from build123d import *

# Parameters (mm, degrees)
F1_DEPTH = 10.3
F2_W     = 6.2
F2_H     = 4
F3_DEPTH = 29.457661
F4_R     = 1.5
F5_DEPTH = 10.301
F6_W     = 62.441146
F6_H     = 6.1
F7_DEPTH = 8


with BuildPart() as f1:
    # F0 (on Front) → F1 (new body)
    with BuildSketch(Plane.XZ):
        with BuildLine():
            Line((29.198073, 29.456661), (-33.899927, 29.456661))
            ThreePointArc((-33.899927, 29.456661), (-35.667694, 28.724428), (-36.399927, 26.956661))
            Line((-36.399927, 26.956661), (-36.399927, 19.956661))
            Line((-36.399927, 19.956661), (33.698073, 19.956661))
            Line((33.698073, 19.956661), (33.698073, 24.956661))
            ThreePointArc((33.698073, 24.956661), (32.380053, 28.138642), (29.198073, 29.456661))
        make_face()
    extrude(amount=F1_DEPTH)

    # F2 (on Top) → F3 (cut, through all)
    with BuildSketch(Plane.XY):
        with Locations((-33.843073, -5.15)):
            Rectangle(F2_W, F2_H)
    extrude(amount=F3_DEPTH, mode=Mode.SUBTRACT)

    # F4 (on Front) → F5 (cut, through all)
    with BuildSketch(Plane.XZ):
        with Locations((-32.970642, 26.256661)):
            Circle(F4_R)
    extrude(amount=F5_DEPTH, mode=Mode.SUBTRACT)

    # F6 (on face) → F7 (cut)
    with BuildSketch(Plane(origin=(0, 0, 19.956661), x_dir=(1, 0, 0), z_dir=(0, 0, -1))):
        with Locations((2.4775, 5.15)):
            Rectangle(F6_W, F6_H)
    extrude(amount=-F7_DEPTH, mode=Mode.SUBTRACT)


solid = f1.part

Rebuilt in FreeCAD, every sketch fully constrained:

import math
import FreeCAD as App
import Part
import Sketcher
from FreeCAD import Vector


def add_polygon(sketch, points):
    """Adds a closed chain of lines whose ends are joined by coincident constraints."""
    first, n = sketch.GeometryCount, len(points)
    for a, b in zip(points, points[1:] + points[:1]):
        sketch.addGeometry(Part.LineSegment(App.Vector(*a, 0), App.Vector(*b, 0)), False)
    for i in range(n):
        sketch.addConstraint(Sketcher.Constraint("Coincident", first + i, 2, first + (i + 1) % n, 1))

doc = App.newDocument("Part")
params = doc.addObject("Spreadsheet::Sheet", "Params")
for row, (alias, value) in enumerate([
    ("sketch1_radius", "2.5 mm"),
    ("sketch1_radius2", "4.5 mm"),
    ("sketch1_height", "7 mm"),
    ("pad1_length", "10.3 mm"),
    ("sketch2_height", "4 mm"),
    ("sketch2_width", "6.2 mm"),
    ("sketch3_diameter", "3 mm"),
    ("sketch4_height", "6.1 mm"),
    ("pocket3_length", "8 mm"),
], start=1):
    params.set(f"A{row}", alias)
    params.set(f"B{row}", "=" + value)
    params.setAlias(f"B{row}", alias)

body = doc.addObject("PartDesign::Body", "Body")

# Sketch on XZ plane
sketch1 = body.newObject("Sketcher::SketchObject", "Sketch")
sketch1.AttachmentSupport = (doc.getObject("XZ_Plane"), [""])
sketch1.MapMode = "FlatFace"
sketch1.addGeometry(Part.LineSegment(Vector(29.2, 29.5, 0), Vector(-33.9, 29.5, 0)), False)
sketch1.addGeometry(Part.ArcOfCircle(Part.Circle(Vector(-33.9, 27, 0), Vector(0, 0, 1), 2.5), math.radians(90), math.radians(180)), False)
sketch1.addGeometry(Part.LineSegment(Vector(-36.4, 27, 0), Vector(-36.4, 20, 0)), False)
sketch1.addGeometry(Part.LineSegment(Vector(-36.4, 20, 0), Vector(33.7, 20, 0)), False)
sketch1.addGeometry(Part.LineSegment(Vector(33.7, 20, 0), Vector(33.7, 25, 0)), False)
sketch1.addGeometry(Part.ArcOfCircle(Part.Circle(Vector(29.2, 25, 0), Vector(0, 0, 1), 4.5), math.radians(0), math.radians(90)), False)
sketch1.addConstraint(Sketcher.Constraint("Tangent", 0, 2, 1, 1))
sketch1.addConstraint(Sketcher.Constraint("Tangent", 1, 2, 2, 1))
sketch1.addConstraint(Sketcher.Constraint("Coincident", 2, 2, 3, 1))
sketch1.addConstraint(Sketcher.Constraint("Coincident", 3, 2, 4, 1))
sketch1.addConstraint(Sketcher.Constraint("Tangent", 4, 2, 5, 1))
sketch1.addConstraint(Sketcher.Constraint("Tangent", 5, 2, 0, 1))
sketch1.addConstraint(Sketcher.Constraint("Horizontal", 0))
sketch1.addConstraint(Sketcher.Constraint("Vertical", 2))
sketch1.addConstraint(Sketcher.Constraint("Horizontal", 3))
sketch1.addConstraint(Sketcher.Constraint("Vertical", 4))
sketch1.addConstraint(Sketcher.Constraint("Radius", 1, 2.5))
sketch1.addConstraint(Sketcher.Constraint("Radius", 5, 4.5))
sketch1.addConstraint(Sketcher.Constraint("DistanceY", 2, 2, 2, 1, 7.0))
sketch1.addConstraint(Sketcher.Constraint("DistanceX", 0, 2, 0, 1, 63.098))
sketch1.addConstraint(Sketcher.Constraint("DistanceY", -1, 1, 1, 3, 26.956661))
sketch1.addConstraint(Sketcher.Constraint("DistanceX", 1, 3, -1, 1, 33.899927))
sketch1.setExpression("Constraints[10]", "Params.sketch1_radius")
sketch1.setExpression("Constraints[11]", "Params.sketch1_radius2")
sketch1.setExpression("Constraints[12]", "Params.sketch1_height")
pad1 = body.newObject("PartDesign::Pad", "Pad")
pad1.Profile = sketch1
pad1.setExpression("Length", "Params.pad1_length")

# Sketch on XY plane
sketch2 = body.newObject("Sketcher::SketchObject", "Sketch001")
sketch2.AttachmentSupport = (doc.getObject("XY_Plane"), [""])
sketch2.MapMode = "FlatFace"
add_polygon(sketch2, [(-36.9, -3.1), (-36.9, -7.2), (-30.7, -7.2), (-30.7, -3.1)])  # lines 0-3
sketch2.addConstraint(Sketcher.Constraint("Vertical", 0))
sketch2.addConstraint(Sketcher.Constraint("Horizontal", 1))
sketch2.addConstraint(Sketcher.Constraint("Vertical", 2))
sketch2.addConstraint(Sketcher.Constraint("Horizontal", 3))
sketch2.addConstraint(Sketcher.Constraint("DistanceY", 0, 2, 0, 1, 4.0))
sketch2.addConstraint(Sketcher.Constraint("DistanceX", 1, 1, 1, 2, 6.2))
sketch2.addConstraint(Sketcher.Constraint("DistanceY", 0, 2, -1, 1, 7.15))
sketch2.addConstraint(Sketcher.Constraint("DistanceX", 0, 2, -1, 1, 36.943073))
sketch2.setExpression("Constraints[8]", "Params.sketch2_height")
sketch2.setExpression("Constraints[9]", "Params.sketch2_width")
pocket1 = body.newObject("PartDesign::Pocket", "Pocket")
pocket1.Profile = sketch2
pocket1.Type = "ThroughAll"
pocket1.Reversed = True

# Sketch on XZ plane
sketch3 = body.newObject("Sketcher::SketchObject", "Sketch002")
sketch3.AttachmentSupport = (doc.getObject("XZ_Plane"), [""])
sketch3.MapMode = "FlatFace"
sketch3.addGeometry(Part.Circle(Vector(-33, 26.3, 0), Vector(0, 0, 1), 1.5), False)
sketch3.addConstraint(Sketcher.Constraint("Diameter", 0, 3.0))
sketch3.addConstraint(Sketcher.Constraint("DistanceX", 0, 3, -1, 1, 32.970642))
sketch3.addConstraint(Sketcher.Constraint("DistanceY", -1, 1, 0, 3, 26.256661))
sketch3.setExpression("Constraints[0]", "Params.sketch3_diameter")
pocket2 = body.newObject("PartDesign::Pocket", "Pocket001")
pocket2.Profile = sketch3
pocket2.Type = "ThroughAll"
pocket2.Reversed = True

# Sketch on XY plane
sketch4 = body.newObject("Sketcher::SketchObject", "Sketch003")
sketch4.AttachmentSupport = (doc.getObject("XY_Plane"), [""])
sketch4.MapMode = "FlatFace"
sketch4.AttachmentOffset = App.Placement(Vector(0, 0, 19.956661), App.Rotation())
add_polygon(sketch4, [(-29, -8), (-29, -2), (34, -2), (34, -8)])  # lines 0-3
sketch4.addConstraint(Sketcher.Constraint("Vertical", 0))
sketch4.addConstraint(Sketcher.Constraint("Horizontal", 1))
sketch4.addConstraint(Sketcher.Constraint("Vertical", 2))
sketch4.addConstraint(Sketcher.Constraint("Horizontal", 3))
sketch4.addConstraint(Sketcher.Constraint("DistanceY", 0, 1, 0, 2, 6.1))
sketch4.addConstraint(Sketcher.Constraint("DistanceY", 0, 2, -1, 1, 2.1))
sketch4.addConstraint(Sketcher.Constraint("DistanceX", 1, 1, 1, 2, 62.441146))
sketch4.addConstraint(Sketcher.Constraint("DistanceX", 0, 2, -1, 1, 28.743073))
sketch4.setExpression("Constraints[8]", "Params.sketch4_height")
pocket3 = body.newObject("PartDesign::Pocket", "Pocket002")
pocket3.Profile = sketch4
pocket3.setExpression("Length", "Params.pocket3_length")
pocket3.Reversed = True

doc.recompute()
